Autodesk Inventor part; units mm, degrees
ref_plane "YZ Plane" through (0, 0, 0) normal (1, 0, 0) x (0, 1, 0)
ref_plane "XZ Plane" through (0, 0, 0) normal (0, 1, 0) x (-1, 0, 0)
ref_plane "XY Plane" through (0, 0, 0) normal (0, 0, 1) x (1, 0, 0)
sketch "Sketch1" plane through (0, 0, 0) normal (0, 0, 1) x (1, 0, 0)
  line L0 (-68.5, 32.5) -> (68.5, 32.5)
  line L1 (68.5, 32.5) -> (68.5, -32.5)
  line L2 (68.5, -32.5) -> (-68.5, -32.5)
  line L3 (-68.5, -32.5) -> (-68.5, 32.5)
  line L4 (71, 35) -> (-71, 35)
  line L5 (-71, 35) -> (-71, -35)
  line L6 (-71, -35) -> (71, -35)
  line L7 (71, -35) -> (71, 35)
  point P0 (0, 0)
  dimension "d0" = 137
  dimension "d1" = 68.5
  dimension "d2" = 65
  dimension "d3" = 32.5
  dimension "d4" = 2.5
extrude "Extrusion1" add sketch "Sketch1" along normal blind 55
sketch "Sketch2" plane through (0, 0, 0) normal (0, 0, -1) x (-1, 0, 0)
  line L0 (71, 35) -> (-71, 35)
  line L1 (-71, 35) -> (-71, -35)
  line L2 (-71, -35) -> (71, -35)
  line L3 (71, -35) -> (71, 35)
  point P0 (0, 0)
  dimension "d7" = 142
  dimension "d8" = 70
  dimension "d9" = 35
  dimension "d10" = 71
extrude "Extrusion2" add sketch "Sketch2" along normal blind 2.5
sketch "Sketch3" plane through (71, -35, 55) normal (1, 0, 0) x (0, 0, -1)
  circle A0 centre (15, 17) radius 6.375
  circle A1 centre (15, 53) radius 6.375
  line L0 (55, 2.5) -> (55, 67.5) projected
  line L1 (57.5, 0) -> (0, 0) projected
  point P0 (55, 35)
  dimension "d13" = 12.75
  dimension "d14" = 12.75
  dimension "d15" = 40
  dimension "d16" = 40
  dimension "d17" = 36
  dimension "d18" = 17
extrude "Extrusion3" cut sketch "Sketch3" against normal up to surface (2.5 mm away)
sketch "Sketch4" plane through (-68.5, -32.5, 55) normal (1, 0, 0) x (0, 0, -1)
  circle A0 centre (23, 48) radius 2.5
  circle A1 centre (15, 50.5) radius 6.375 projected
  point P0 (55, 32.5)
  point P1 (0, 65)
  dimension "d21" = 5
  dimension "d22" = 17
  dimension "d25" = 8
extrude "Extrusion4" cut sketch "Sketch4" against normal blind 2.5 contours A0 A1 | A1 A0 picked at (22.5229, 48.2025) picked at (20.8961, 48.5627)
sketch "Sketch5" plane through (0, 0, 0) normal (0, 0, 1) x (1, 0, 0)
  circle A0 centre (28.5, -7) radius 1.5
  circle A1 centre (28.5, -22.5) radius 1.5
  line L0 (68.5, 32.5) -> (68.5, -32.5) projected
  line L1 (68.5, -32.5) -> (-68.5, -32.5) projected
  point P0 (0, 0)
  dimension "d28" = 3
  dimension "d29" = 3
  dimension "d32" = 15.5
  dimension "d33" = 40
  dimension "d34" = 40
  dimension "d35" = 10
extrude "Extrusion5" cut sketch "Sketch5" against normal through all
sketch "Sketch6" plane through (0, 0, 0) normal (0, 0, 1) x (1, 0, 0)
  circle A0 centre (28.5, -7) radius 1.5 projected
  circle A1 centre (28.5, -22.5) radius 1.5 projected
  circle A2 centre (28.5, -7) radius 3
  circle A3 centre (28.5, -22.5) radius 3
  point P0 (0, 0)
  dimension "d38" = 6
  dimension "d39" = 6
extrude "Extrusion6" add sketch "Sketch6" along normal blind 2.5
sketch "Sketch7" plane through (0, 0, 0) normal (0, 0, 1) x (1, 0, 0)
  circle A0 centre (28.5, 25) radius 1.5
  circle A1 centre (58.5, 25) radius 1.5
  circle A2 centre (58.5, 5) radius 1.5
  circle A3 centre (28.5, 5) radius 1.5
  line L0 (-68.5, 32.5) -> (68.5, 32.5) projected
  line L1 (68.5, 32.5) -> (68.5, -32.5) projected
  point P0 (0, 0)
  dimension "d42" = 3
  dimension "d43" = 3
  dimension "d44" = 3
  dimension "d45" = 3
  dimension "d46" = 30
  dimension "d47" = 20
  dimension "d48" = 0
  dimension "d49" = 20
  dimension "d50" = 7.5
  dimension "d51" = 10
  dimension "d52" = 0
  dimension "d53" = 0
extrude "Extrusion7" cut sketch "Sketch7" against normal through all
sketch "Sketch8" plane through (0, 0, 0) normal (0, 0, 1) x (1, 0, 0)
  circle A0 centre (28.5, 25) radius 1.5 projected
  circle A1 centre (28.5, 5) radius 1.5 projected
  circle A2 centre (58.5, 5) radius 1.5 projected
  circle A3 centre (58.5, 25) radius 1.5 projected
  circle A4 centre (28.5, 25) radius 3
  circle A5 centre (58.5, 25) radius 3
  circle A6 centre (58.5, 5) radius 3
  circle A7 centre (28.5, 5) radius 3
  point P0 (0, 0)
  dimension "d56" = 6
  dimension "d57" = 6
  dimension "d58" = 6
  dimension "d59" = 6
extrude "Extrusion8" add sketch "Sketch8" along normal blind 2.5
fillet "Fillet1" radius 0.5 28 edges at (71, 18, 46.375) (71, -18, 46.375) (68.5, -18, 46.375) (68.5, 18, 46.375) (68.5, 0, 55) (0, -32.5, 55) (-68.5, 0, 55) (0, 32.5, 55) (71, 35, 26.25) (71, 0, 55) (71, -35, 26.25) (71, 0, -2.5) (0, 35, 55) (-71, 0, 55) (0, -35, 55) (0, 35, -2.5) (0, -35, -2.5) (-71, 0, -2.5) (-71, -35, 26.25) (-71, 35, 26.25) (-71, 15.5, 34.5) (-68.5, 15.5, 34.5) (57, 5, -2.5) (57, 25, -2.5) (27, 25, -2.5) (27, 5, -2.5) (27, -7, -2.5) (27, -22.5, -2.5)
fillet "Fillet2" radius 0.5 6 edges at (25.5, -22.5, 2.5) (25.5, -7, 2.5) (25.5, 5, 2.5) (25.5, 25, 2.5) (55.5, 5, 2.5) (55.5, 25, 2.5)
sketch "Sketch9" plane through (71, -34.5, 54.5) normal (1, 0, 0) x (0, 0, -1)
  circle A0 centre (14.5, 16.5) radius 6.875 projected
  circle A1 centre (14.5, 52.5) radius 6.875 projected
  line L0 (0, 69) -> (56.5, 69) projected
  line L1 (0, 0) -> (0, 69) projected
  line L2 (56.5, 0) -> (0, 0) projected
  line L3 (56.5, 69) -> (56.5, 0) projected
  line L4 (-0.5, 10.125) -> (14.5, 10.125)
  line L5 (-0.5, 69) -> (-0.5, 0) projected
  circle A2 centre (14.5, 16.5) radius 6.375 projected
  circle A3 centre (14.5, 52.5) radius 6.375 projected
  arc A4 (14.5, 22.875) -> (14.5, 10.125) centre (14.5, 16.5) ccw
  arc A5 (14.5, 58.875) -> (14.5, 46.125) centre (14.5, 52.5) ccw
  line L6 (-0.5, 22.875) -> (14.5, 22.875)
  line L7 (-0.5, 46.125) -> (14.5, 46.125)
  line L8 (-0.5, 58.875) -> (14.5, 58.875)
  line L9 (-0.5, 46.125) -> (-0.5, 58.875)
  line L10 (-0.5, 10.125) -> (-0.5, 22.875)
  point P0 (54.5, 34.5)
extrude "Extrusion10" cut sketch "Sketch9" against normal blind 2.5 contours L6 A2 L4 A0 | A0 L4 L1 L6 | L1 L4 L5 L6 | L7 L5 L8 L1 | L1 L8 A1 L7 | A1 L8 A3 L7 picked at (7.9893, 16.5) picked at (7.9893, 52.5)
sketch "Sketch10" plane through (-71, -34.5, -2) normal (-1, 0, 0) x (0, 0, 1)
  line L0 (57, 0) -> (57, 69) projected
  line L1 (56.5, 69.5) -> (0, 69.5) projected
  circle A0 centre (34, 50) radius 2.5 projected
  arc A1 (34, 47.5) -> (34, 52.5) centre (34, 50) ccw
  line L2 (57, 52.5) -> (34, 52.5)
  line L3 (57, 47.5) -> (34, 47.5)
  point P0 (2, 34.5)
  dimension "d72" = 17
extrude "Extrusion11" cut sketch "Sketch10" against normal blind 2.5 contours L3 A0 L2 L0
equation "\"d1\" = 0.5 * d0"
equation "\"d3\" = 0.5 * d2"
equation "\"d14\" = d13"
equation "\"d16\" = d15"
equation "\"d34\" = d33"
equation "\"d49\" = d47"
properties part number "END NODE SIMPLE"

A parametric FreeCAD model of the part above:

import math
import FreeCAD as App
import Part
import Sketcher
from FreeCAD import Vector
Q = App.Units.Quantity


def edges_at(feature, points):
    """Names of the edges that pass closest to the given points."""
    edges = feature.Shape.Edges
    near = lambda p: min(range(len(edges)), key=lambda i: edges[i].distToShape(Part.Vertex(*p))[0])
    return sorted({f"Edge{near(p) + 1}" for p in points})


def add_polygon(sketch, points):
    """Adds a closed chain of lines whose ends are joined by coincident constraints."""
    first, n = sketch.GeometryCount, len(points)
    for a, b in zip(points, points[1:] + points[:1]):
        sketch.addGeometry(Part.LineSegment(App.Vector(*a, 0), App.Vector(*b, 0)), False)
    for i in range(n):
        sketch.addConstraint(Sketcher.Constraint("Coincident", first + i, 2, first + (i + 1) % n, 1))

doc = App.newDocument("Part")
body = doc.addObject("PartDesign::Body", "Body")

sketch1 = doc.addObject("Sketcher::SketchObject", "Sketch")
body.addObject(sketch1)
sketch1.AttachmentSupport = (doc.XY_Plane, [""])
sketch1.MapMode = "FlatFace"
add_polygon(sketch1, [(71, -35), (71, 35), (-71, 35), (-71, -35)])
add_polygon(sketch1, [(-68, -32), (-68, 32), (68, 32), (68, -32)])
sketch1.addConstraint(Sketcher.Constraint("Vertical", 0))
sketch1.addConstraint(Sketcher.Constraint("Horizontal", 1))
sketch1.addConstraint(Sketcher.Constraint("Vertical", 2))
sketch1.addConstraint(Sketcher.Constraint("Horizontal", 3))
sketch1.addConstraint(Sketcher.Constraint("Vertical", 4))
sketch1.addConstraint(Sketcher.Constraint("Horizontal", 5))
sketch1.addConstraint(Sketcher.Constraint("Vertical", 6))
sketch1.addConstraint(Sketcher.Constraint("Horizontal", 7))
sketch1.addConstraint(Sketcher.Constraint("Symmetric", 0, 2, 2, 2, -1, 1))
sketch1.addConstraint(Sketcher.Constraint("Symmetric", 4, 2, 6, 2, -1, 1))
sketch1.addConstraint(Sketcher.Constraint("DistanceX", 5, 1, 5, 2, Q("137 mm")))
sketch1.addConstraint(Sketcher.Constraint("DistanceY", 4, 1, 4, 2, Q("65 mm")))
sketch1.addConstraint(Sketcher.Constraint("DistanceX", 1, 2, 4, 2, Q("2.5 mm")))
sketch1.addConstraint(Sketcher.Constraint("DistanceY", 4, 2, 1, 2, Q("2.5 mm")))
pad1 = doc.addObject("PartDesign::Pad", "Pad")
body.addObject(pad1)
pad1.Profile = sketch1
pad1.Length = 55

sketch2 = doc.addObject("Sketcher::SketchObject", "Sketch001")
body.addObject(sketch2)
sketch2.AttachmentSupport = (doc.XY_Plane, [""])
sketch2.MapMode = "FlatFace"
add_polygon(sketch2, [(-71, -35), (-71, 35), (71, 35), (71, -35)])
sketch2.addConstraint(Sketcher.Constraint("Vertical", 0))
sketch2.addConstraint(Sketcher.Constraint("Horizontal", 1))
sketch2.addConstraint(Sketcher.Constraint("Vertical", 2))
sketch2.addConstraint(Sketcher.Constraint("Horizontal", 3))
sketch2.addConstraint(Sketcher.Constraint("Symmetric", 0, 2, 2, 2, -1, 1))
sketch2.addConstraint(Sketcher.Constraint("DistanceX", 1, 1, 1, 2, Q("142 mm")))
sketch2.addConstraint(Sketcher.Constraint("DistanceY", 0, 1, 0, 2, Q("70 mm")))
pad2 = doc.addObject("PartDesign::Pad", "Pad001")
body.addObject(pad2)
pad2.Profile = sketch2
pad2.Length = 2.5
pad2.Reversed = True

sketch3 = doc.addObject("Sketcher::SketchObject", "Sketch002")
body.addObject(sketch3)
sketch3.AttachmentSupport = (doc.YZ_Plane, [""])
sketch3.MapMode = "FlatFace"
sketch3.AttachmentOffset = App.Placement(Vector(0, 0, 71), App.Rotation())
sketch3.addGeometry(Part.Circle(Vector(-18, 40, 0), Vector(0, 0, 1), 6), False)
sketch3.addGeometry(Part.Circle(Vector(18, 40, 0), Vector(0, 0, 1), 6), False)
sketch3.addConstraint(Sketcher.Constraint("Equal", 0, 1))
sketch3.addConstraint(Sketcher.Constraint("Symmetric", 0, 3, 1, 3, -2))
sketch3.addConstraint(Sketcher.Constraint("Diameter", 0, Q("12.75 mm")))
sketch3.addConstraint(Sketcher.Constraint("DistanceY", -1, 1, 0, 3, Q("40 mm")))
sketch3.addConstraint(Sketcher.Constraint("DistanceX", 0, 3, 1, 3, Q("36 mm")))
pocket1 = doc.addObject("PartDesign::Pocket", "Pocket")
body.addObject(pocket1)
pocket1.Profile = sketch3
pocket1.Length = 2.5

sketch4 = doc.addObject("Sketcher::SketchObject", "Sketch003")
body.addObject(sketch4)
sketch4.AttachmentSupport = (doc.YZ_Plane, [""])
sketch4.MapMode = "FlatFace"
sketch4.AttachmentOffset = App.Placement(Vector(0, 0, -68.5), App.Rotation())
sketch4.addGeometry(Part.Circle(Vector(15.5, 32, 0), Vector(0, 0, 1), 2.5), False)
sketch4.addConstraint(Sketcher.Constraint("Diameter", 0, Q("5 mm")))
sketch4.addConstraint(Sketcher.Constraint("DistanceY", -1, 1, 0, 3, Q("32 mm")))
sketch4.addConstraint(Sketcher.Constraint("DistanceX", -1, 1, 0, 3, Q("15.5 mm")))
pocket2 = doc.addObject("PartDesign::Pocket", "Pocket001")
body.addObject(pocket2)
pocket2.Profile = sketch4
pocket2.Length = 2.5

sketch5 = doc.addObject("Sketcher::SketchObject", "Sketch004")
body.addObject(sketch5)
sketch5.AttachmentSupport = (doc.XY_Plane, [""])
sketch5.MapMode = "FlatFace"
sketch5.addGeometry(Part.Circle(Vector(28.5, -7, 0), Vector(0, 0, 1), 1.5), False)
sketch5.addGeometry(Part.Circle(Vector(28.5, -22.5, 0), Vector(0, 0, 1), 1.5), False)
sketch5.addConstraint(Sketcher.Constraint("Equal", 0, 1))
sketch5.addConstraint(Sketcher.Constraint("Vertical", 0, 3, 1, 3))
sketch5.addConstraint(Sketcher.Constraint("Diameter", 0, Q("3 mm")))
sketch5.addConstraint(Sketcher.Constraint("DistanceY", 1, 3, 0, 3, Q("15.5 mm")))
sketch5.addConstraint(Sketcher.Constraint("DistanceY", 0, 3, -1, 1, Q("7 mm")))
sketch5.addConstraint(Sketcher.Constraint("DistanceX", -1, 1, 0, 3, Q("28.5 mm")))
pocket3 = doc.addObject("PartDesign::Pocket", "Pocket002")
body.addObject(pocket3)
pocket3.Profile = sketch5
pocket3.Type = "ThroughAll"

sketch6 = doc.addObject("Sketcher::SketchObject", "Sketch005")
body.addObject(sketch6)
sketch6.AttachmentSupport = (doc.XY_Plane, [""])
sketch6.MapMode = "FlatFace"
sketch6.addGeometry(Part.Circle(Vector(28.5, -7, 0), Vector(0, 0, 1), 3), False)
sketch6.addGeometry(Part.Circle(Vector(28.5, -7, 0), Vector(0, 0, 1), 1.5), False)
sketch6.addGeometry(Part.Circle(Vector(28.5, -22.5, 0), Vector(0, 0, 1), 3), False)
sketch6.addGeometry(Part.Circle(Vector(28.5, -22.5, 0), Vector(0, 0, 1), 1.5), False)
sketch6.addConstraint(Sketcher.Constraint("Coincident", 1, 3, 0, 3))
sketch6.addConstraint(Sketcher.Constraint("Coincident", 3, 3, 2, 3))
sketch6.addConstraint(Sketcher.Constraint("Equal", 0, 2))
sketch6.addConstraint(Sketcher.Constraint("Equal", 1, 3))
sketch6.addConstraint(Sketcher.Constraint("Vertical", 1, 3, 2, 3))
sketch6.addConstraint(Sketcher.Constraint("Diameter", 0, Q("6 mm")))
sketch6.addConstraint(Sketcher.Constraint("Diameter", 1, Q("3 mm")))
sketch6.addConstraint(Sketcher.Constraint("DistanceY", 0, 3, -1, 1, Q("7 mm")))
sketch6.addConstraint(Sketcher.Constraint("DistanceX", -1, 1, 0, 3, Q("28.5 mm")))
sketch6.addConstraint(Sketcher.Constraint("DistanceY", 2, 3, -1, 1, Q("22.5 mm")))
pad3 = doc.addObject("PartDesign::Pad", "Pad002")
body.addObject(pad3)
pad3.Profile = sketch6
pad3.Length = 2.5

sketch7 = doc.addObject("Sketcher::SketchObject", "Sketch006")
body.addObject(sketch7)
sketch7.AttachmentSupport = (doc.XY_Plane, [""])
sketch7.MapMode = "FlatFace"
sketch7.addGeometry(Part.Circle(Vector(28.5, 25, 0), Vector(0, 0, 1), 1.5), False)
sketch7.addGeometry(Part.Circle(Vector(58.5, 25, 0), Vector(0, 0, 1), 1.5), False)
sketch7.addGeometry(Part.Circle(Vector(58.5, 5, 0), Vector(0, 0, 1), 1.5), False)
sketch7.addGeometry(Part.Circle(Vector(28.5, 5, 0), Vector(0, 0, 1), 1.5), False)
sketch7.addConstraint(Sketcher.Constraint("Equal", 0, 1))
sketch7.addConstraint(Sketcher.Constraint("Equal", 1, 2))
sketch7.addConstraint(Sketcher.Constraint("Equal", 2, 3))
sketch7.addConstraint(Sketcher.Constraint("Horizontal", 0, 3, 1, 3))
sketch7.addConstraint(Sketcher.Constraint("Horizontal", 2, 3, 3, 3))
sketch7.addConstraint(Sketcher.Constraint("Vertical", 1, 3, 2, 3))
sketch7.addConstraint(Sketcher.Constraint("Vertical", 0, 3, 3, 3))
sketch7.addConstraint(Sketcher.Constraint("Diameter", 0, Q("3 mm")))
sketch7.addConstraint(Sketcher.Constraint("DistanceX", 0, 3, 1, 3, Q("30 mm")))
sketch7.addConstraint(Sketcher.Constraint("DistanceY", 2, 3, 1, 3, Q("20 mm")))
sketch7.addConstraint(Sketcher.Constraint("DistanceY", -1, 1, 0, 3, Q("25 mm")))
sketch7.addConstraint(Sketcher.Constraint("DistanceX", -1, 1, 0, 3, Q("28.5 mm")))
pocket4 = doc.addObject("PartDesign::Pocket", "Pocket003")
body.addObject(pocket4)
pocket4.Profile = sketch7
pocket4.Type = "ThroughAll"

sketch8 = doc.addObject("Sketcher::SketchObject", "Sketch007")
body.addObject(sketch8)
sketch8.AttachmentSupport = (doc.XY_Plane, [""])
sketch8.MapMode = "FlatFace"
sketch8.addGeometry(Part.Circle(Vector(28.5, 25, 0), Vector(0, 0, 1), 3), False)
sketch8.addGeometry(Part.Circle(Vector(28.5, 25, 0), Vector(0, 0, 1), 1.5), False)
sketch8.addGeometry(Part.Circle(Vector(58.5, 25, 0), Vector(0, 0, 1), 3), False)
sketch8.addGeometry(Part.Circle(Vector(58.5, 25, 0), Vector(0, 0, 1), 1.5), False)
sketch8.addGeometry(Part.Circle(Vector(58.5, 5, 0), Vector(0, 0, 1), 3), False)
sketch8.addGeometry(Part.Circle(Vector(58.5, 5, 0), Vector(0, 0, 1), 1.5), False)
sketch8.addGeometry(Part.Circle(Vector(28.5, 5, 0), Vector(0, 0, 1), 3), False)
sketch8.addGeometry(Part.Circle(Vector(28.5, 5, 0), Vector(0, 0, 1), 1.5), False)
sketch8.addConstraint(Sketcher.Constraint("Coincident", 1, 3, 0, 3))
sketch8.addConstraint(Sketcher.Constraint("Coincident", 3, 3, 2, 3))
sketch8.addConstraint(Sketcher.Constraint("Coincident", 5, 3, 4, 3))
sketch8.addConstraint(Sketcher.Constraint("Coincident", 7, 3, 6, 3))
sketch8.addConstraint(Sketcher.Constraint("Equal", 0, 2))
sketch8.addConstraint(Sketcher.Constraint("Equal", 1, 3))
sketch8.addConstraint(Sketcher.Constraint("Equal", 2, 4))
sketch8.addConstraint(Sketcher.Constraint("Equal", 3, 5))
sketch8.addConstraint(Sketcher.Constraint("Equal", 4, 6))
sketch8.addConstraint(Sketcher.Constraint("Equal", 5, 7))
sketch8.addConstraint(Sketcher.Constraint("Horizontal", 1, 3, 2, 3))
sketch8.addConstraint(Sketcher.Constraint("Horizontal", 5, 3, 6, 3))
sketch8.addConstraint(Sketcher.Constraint("Vertical", 3, 3, 4, 3))
sketch8.addConstraint(Sketcher.Constraint("Vertical", 1, 3, 6, 3))
sketch8.addConstraint(Sketcher.Constraint("Diameter", 0, Q("6 mm")))
sketch8.addConstraint(Sketcher.Constraint("Diameter", 1, Q("3 mm")))
sketch8.addConstraint(Sketcher.Constraint("DistanceY", -1, 1, 0, 3, Q("25 mm")))
sketch8.addConstraint(Sketcher.Constraint("DistanceY", -1, 1, 4, 3, Q("5 mm")))
sketch8.addConstraint(Sketcher.Constraint("DistanceX", 0, 3, 2, 3, Q("30 mm")))
sketch8.addConstraint(Sketcher.Constraint("DistanceX", -1, 1, 0, 3, Q("28.5 mm")))
pad4 = doc.addObject("PartDesign::Pad", "Pad003")
body.addObject(pad4)
pad4.Profile = sketch8
pad4.Length = 2.5
doc.recompute()

fillet = doc.addObject("PartDesign::Fillet", "Fillet")
body.addObject(fillet)
fillet.Base = (pad4, edges_at(pad4, [
    (71, 18, 46.375),
    (71, -18, 46.375),
    (68.5, -18, 46.375),
    (68.5, 18, 46.375),
    (68.5, 0, 55),
    (0, -32.5, 55),
    (-68.5, 0, 55),
    (0, 32.5, 55),
    (71, 35, 26.25),
    (71, 0, 55),
    (71, -35, 26.25),
    (71, 0, -2.5),
    (0, 35, 55),
    (-71, 0, 55),
    (0, -35, 55),
    (0, 35, -2.5),
    (0, -35, -2.5),
    (-71, 0, -2.5),
    (-71, -35, 26.25),
    (-71, 35, 26.25),
    (-71, 15.5, 34.5),
    (-68.5, 15.5, 34.5),
    (57, 5, -2.5),
    (57, 25, -2.5),
    (27, 25, -2.5),
    (27, 5, -2.5),
    (27, -7, -2.5),
    (27, -22.5, -2.5),
]))
fillet.Radius = 0.5
doc.recompute()

fillet2 = doc.addObject("PartDesign::Fillet", "Fillet001")
body.addObject(fillet2)
fillet2.Base = (fillet, edges_at(fillet, [
    (25.5, -22.5, 2.5),
    (25.5, -7, 2.5),
    (25.5, 5, 2.5),
    (25.5, 25, 2.5),
    (55.5, 5, 2.5),
    (55.5, 25, 2.5),
]))
fillet2.Radius = 0.5

sketch9 = doc.addObject("Sketcher::SketchObject", "Sketch008")
body.addObject(sketch9)
sketch9.AttachmentSupport = (doc.YZ_Plane, [""])
sketch9.MapMode = "FlatFace"
sketch9.AttachmentOffset = App.Placement(Vector(0, 0, 71), App.Rotation())
sketch9.addGeometry(Part.LineSegment(Vector(-12, 40, 0), Vector(-12, 55, 0)), False)
sketch9.addGeometry(Part.LineSegment(Vector(-12, 55, 0), Vector(-24, 55, 0)), False)
sketch9.addGeometry(Part.LineSegment(Vector(-24, 55, 0), Vector(-24, 40, 0)), False)
sketch9.addGeometry(Part.ArcOfCircle(Part.Circle(Vector(-18, 40, 0), Vector(0, 0, 1), 6), math.radians(0), math.radians(180)), False)
sketch9.addGeometry(Part.LineSegment(Vector(12, 55, 0), Vector(12, 40, 0)), False)
sketch9.addGeometry(Part.ArcOfCircle(Part.Circle(Vector(18, 40, 0), Vector(0, 0, 1), 6), math.radians(0), math.radians(180)), False)
sketch9.addGeometry(Part.LineSegment(Vector(24, 40, 0), Vector(24, 55, 0)), False)
sketch9.addGeometry(Part.LineSegment(Vector(24, 55, 0), Vector(12, 55, 0)), False)
sketch9.addConstraint(Sketcher.Constraint("Coincident", 0, 2, 1, 1))
sketch9.addConstraint(Sketcher.Constraint("Coincident", 1, 2, 2, 1))
sketch9.addConstraint(Sketcher.Constraint("Tangent", 2, 2, 3, 2))
sketch9.addConstraint(Sketcher.Constraint("Tangent", 3, 1, 0, 1))
sketch9.addConstraint(Sketcher.Constraint("Tangent", 4, 2, 5, 2))
sketch9.addConstraint(Sketcher.Constraint("Tangent", 5, 1, 6, 1))
sketch9.addConstraint(Sketcher.Constraint("Coincident", 6, 2, 7, 1))
sketch9.addConstraint(Sketcher.Constraint("Coincident", 7, 2, 4, 1))
sketch9.addConstraint(Sketcher.Constraint("Vertical", 0))
sketch9.addConstraint(Sketcher.Constraint("Horizontal", 1))
sketch9.addConstraint(Sketcher.Constraint("Vertical", 2))
sketch9.addConstraint(Sketcher.Constraint("Vertical", 4))
sketch9.addConstraint(Sketcher.Constraint("Vertical", 6))
sketch9.addConstraint(Sketcher.Constraint("Horizontal", 7))
sketch9.addConstraint(Sketcher.Constraint("Equal", 3, 5))
sketch9.addConstraint(Sketcher.Constraint("Symmetric", 3, 3, 5, 3, -2))
sketch9.addConstraint(Sketcher.Constraint("Horizontal", 1, 2, 6, 2))
sketch9.addConstraint(Sketcher.Constraint("DistanceY", 0, 1, 0, 2, Q("15 mm")))
sketch9.addConstraint(Sketcher.Constraint("DistanceX", 3, 3, -1, 1, Q("18 mm")))
sketch9.addConstraint(Sketcher.Constraint("DistanceY", -1, 1, 3, 3, Q("40 mm")))
sketch9.addConstraint(Sketcher.Constraint("Radius", 3, Q("6.375 mm")))
pocket5 = doc.addObject("PartDesign::Pocket", "Pocket004")
body.addObject(pocket5)
pocket5.Profile = sketch9
pocket5.Length = 2.5

sketch10 = doc.addObject("Sketcher::SketchObject", "Sketch009")
body.addObject(sketch10)
sketch10.AttachmentSupport = (doc.YZ_Plane, [""])
sketch10.MapMode = "FlatFace"
sketch10.AttachmentOffset = App.Placement(Vector(0, 0, -71), App.Rotation())
sketch10.addGeometry(Part.LineSegment(Vector(13, 32, 0), Vector(13, 55, 0)), False)
sketch10.addGeometry(Part.LineSegment(Vector(13, 55, 0), Vector(18, 55, 0)), False)
sketch10.addGeometry(Part.LineSegment(Vector(18, 55, 0), Vector(18, 32, 0)), False)
sketch10.addGeometry(Part.ArcOfCircle(Part.Circle(Vector(15.5, 32, 0), Vector(0, 0, 1), 2.5), math.radians(0), math.radians(180)), False)
sketch10.addConstraint(Sketcher.Constraint("Coincident", 0, 2, 1, 1))
sketch10.addConstraint(Sketcher.Constraint("Coincident", 1, 2, 2, 1))
sketch10.addConstraint(Sketcher.Constraint("Tangent", 2, 2, 3, 1))
sketch10.addConstraint(Sketcher.Constraint("Tangent", 3, 2, 0, 1))
sketch10.addConstraint(Sketcher.Constraint("Vertical", 0))
sketch10.addConstraint(Sketcher.Constraint("Horizontal", 1))
sketch10.addConstraint(Sketcher.Constraint("Vertical", 2))
sketch10.addConstraint(Sketcher.Constraint("Radius", 3, Q("2.5 mm")))
sketch10.addConstraint(Sketcher.Constraint("DistanceY", 0, 1, 0, 2, Q("23 mm")))
sketch10.addConstraint(Sketcher.Constraint("DistanceY", -1, 1, 3, 3, Q("32 mm")))
sketch10.addConstraint(Sketcher.Constraint("DistanceX", -1, 1, 0, 2, Q("13 mm")))
pocket6 = doc.addObject("PartDesign::Pocket", "Pocket005")
body.addObject(pocket6)
pocket6.Profile = sketch10
pocket6.Length = 2.5
pocket6.Reversed = True

doc.recompute()
